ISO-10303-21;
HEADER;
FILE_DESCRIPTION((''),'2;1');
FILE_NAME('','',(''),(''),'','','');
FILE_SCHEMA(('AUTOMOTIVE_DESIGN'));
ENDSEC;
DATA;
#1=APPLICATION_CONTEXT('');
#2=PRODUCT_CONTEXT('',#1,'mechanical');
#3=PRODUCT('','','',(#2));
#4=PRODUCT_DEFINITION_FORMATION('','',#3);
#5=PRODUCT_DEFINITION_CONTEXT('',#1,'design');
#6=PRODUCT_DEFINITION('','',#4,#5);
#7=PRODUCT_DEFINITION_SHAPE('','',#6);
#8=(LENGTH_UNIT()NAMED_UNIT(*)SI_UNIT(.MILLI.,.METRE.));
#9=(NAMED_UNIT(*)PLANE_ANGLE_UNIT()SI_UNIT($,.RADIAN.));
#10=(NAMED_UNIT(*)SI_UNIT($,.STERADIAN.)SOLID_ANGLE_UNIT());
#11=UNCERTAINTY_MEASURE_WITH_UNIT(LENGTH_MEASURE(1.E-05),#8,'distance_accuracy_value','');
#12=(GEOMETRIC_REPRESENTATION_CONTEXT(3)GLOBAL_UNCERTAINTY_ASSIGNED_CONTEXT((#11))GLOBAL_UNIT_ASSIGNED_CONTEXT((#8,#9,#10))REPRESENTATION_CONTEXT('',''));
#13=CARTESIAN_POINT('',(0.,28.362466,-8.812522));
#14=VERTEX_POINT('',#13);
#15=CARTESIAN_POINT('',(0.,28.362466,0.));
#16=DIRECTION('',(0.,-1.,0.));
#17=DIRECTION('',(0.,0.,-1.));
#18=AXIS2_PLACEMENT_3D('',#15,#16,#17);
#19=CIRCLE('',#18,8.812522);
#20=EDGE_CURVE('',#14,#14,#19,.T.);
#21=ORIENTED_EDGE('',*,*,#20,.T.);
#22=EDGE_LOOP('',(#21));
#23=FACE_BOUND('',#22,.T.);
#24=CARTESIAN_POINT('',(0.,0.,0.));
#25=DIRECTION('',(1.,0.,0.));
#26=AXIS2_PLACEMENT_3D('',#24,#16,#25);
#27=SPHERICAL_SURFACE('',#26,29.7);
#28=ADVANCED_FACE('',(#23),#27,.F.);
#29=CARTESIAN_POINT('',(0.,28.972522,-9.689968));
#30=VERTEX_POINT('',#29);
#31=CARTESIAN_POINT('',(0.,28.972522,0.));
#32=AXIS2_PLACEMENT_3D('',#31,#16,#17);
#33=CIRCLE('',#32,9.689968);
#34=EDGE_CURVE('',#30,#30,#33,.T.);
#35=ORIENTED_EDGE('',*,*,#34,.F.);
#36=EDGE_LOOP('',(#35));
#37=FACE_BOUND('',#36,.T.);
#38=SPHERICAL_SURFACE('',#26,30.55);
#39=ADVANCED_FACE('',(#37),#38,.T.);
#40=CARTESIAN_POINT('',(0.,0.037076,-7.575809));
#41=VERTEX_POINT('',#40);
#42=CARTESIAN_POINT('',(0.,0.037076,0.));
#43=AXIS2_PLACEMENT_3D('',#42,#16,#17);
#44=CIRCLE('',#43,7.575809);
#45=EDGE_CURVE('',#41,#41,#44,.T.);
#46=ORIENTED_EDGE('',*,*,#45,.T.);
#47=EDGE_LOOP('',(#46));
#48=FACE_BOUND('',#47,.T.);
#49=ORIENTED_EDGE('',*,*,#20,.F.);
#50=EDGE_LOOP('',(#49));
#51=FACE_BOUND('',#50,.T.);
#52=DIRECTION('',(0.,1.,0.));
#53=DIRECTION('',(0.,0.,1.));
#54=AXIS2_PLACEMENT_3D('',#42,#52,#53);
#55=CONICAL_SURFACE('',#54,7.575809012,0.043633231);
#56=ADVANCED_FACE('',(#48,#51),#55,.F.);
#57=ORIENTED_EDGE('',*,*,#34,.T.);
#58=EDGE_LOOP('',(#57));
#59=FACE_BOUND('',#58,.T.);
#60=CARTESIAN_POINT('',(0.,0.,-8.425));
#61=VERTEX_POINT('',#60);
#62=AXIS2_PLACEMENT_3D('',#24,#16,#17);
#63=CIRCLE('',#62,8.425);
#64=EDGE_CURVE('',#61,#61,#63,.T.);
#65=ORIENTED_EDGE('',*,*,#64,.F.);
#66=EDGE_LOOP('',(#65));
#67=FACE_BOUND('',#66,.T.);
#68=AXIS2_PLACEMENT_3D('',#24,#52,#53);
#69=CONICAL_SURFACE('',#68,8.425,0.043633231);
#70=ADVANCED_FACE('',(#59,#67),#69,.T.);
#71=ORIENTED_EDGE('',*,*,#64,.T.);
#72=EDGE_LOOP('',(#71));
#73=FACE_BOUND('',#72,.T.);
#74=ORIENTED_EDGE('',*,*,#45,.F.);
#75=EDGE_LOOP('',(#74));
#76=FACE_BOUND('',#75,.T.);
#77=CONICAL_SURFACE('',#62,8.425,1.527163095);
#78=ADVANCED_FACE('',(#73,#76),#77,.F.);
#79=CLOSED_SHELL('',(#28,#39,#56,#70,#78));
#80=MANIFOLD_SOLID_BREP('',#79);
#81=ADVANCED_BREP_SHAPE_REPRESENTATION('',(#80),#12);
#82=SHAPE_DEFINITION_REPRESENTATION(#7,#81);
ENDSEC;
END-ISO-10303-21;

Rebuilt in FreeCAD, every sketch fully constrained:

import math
import FreeCAD as App
import Part
import Sketcher

V = App.Vector
Q = App.Units.Quantity

doc = App.newDocument("Part")
body = doc.addObject("PartDesign::Body", "Body")

# Sketch on XY plane
sketch1 = body.newObject("Sketcher::SketchObject", "Sketch")
sketch1.AttachmentSupport = (doc.getObject("XY_Plane"), [""])
sketch1.MapMode = "FlatFace"
sketch1.addGeometry(Part.ArcOfCircle(Part.Circle(V(0, 0, 0), V(0, 0, 1), 30.5), math.radians(71.51), math.radians(90)), False)
sketch1.addGeometry(Part.LineSegment(V(0, 30.6, 0), V(0, 29.7, 0)), False)
sketch1.addGeometry(Part.ArcOfCircle(Part.Circle(V(0, 0, 0), V(0, 0, 1), 29.7), math.radians(72.74), math.radians(90)), False)
sketch1.addGeometry(Part.LineSegment(V(8.8, 28.4, 0), V(7.6, 0, 0)), False)
sketch1.addGeometry(Part.LineSegment(V(7.6, 0, 0), V(8.4, 0, 0)), False)
sketch1.addGeometry(Part.LineSegment(V(8.4, 0, 0), V(9.7, 29, 0)), False)
sketch1.addConstraint(Sketcher.Constraint("Coincident", 0, 2, 1, 1))
sketch1.addConstraint(Sketcher.Constraint("Coincident", 1, 2, 2, 2))
sketch1.addConstraint(Sketcher.Constraint("Coincident", 2, 1, 3, 1))
sketch1.addConstraint(Sketcher.Constraint("Coincident", 3, 2, 4, 1))
sketch1.addConstraint(Sketcher.Constraint("Coincident", 4, 2, 5, 1))
sketch1.addConstraint(Sketcher.Constraint("Coincident", 5, 2, 0, 1))
sketch1.addConstraint(Sketcher.Constraint("Vertical", 1))
sketch1.addConstraint(Sketcher.Constraint("Coincident", 0, 3, -1, 1))
sketch1.addConstraint(Sketcher.Constraint("Coincident", 2, 3, -1, 1))
sketch1.addConstraint(Sketcher.Constraint("PointOnObject", 0, 2, -2))
sketch1.addConstraint(Sketcher.Constraint("PointOnObject", 4, 2, -1))
sketch1.addConstraint(Sketcher.Constraint("Perpendicular", 3, 4))
sketch1.addConstraint(Sketcher.Constraint("Perpendicular", 4, 5))
sketch1.addConstraint(Sketcher.Constraint("Radius", 2, Q("29.7 mm")))
sketch1.addConstraint(Sketcher.Constraint("Radius", 0, Q("30.55 mm")))
sketch1.addConstraint(Sketcher.Constraint("Angle", 3, Q("-92.5 deg")))
sketch1.addConstraint(Sketcher.Constraint("Distance", 4, Q("0.85 mm")))
sketch1.addConstraint(Sketcher.Constraint("DistanceX", -1, 1, 4, 2, Q("8.425 mm")))
revolution = body.newObject("PartDesign::Revolution", "Revolution")
revolution.Profile = sketch1
revolution.ReferenceAxis = (sketch1, ["V_Axis"])
revolution.Angle = 360

doc.recompute()
